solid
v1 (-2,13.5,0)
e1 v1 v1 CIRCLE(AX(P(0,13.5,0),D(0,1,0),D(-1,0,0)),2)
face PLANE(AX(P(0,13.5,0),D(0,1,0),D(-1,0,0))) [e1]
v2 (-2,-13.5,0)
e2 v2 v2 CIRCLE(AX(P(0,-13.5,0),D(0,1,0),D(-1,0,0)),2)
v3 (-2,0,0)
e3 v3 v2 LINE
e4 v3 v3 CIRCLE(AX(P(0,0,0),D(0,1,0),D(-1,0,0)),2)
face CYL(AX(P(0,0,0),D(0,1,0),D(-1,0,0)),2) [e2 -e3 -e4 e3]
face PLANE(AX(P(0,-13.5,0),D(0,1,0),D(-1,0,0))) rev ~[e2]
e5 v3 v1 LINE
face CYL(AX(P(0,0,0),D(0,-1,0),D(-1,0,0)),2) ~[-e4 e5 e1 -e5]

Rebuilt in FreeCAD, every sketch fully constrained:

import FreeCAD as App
import Part
import Sketcher

doc = App.newDocument("Part")
params = doc.addObject("Spreadsheet::Sheet", "Params")
for row, (alias, value) in enumerate([
    ("sketch1_diameter", "4 mm"),
    ("pad1_length", "27 mm"),
], start=1):
    params.set(f"A{row}", alias)
    params.set(f"B{row}", "=" + value)
    params.setAlias(f"B{row}", alias)

body = doc.addObject("PartDesign::Body", "Body")

# Sketch on XZ plane
sketch1 = body.newObject("Sketcher::SketchObject", "Sketch")
sketch1.AttachmentSupport = (doc.getObject("XZ_Plane"), [""])
sketch1.MapMode = "FlatFace"
sketch1.addGeometry(Part.Circle(App.Vector(0, 0, 0), App.Vector(0, 0, 1), 2), False)
sketch1.addConstraint([
    Sketcher.Constraint("Coincident", 0, 3, -1, 1),
    Sketcher.Constraint("Diameter", 0, 4.0),
])
sketch1.setExpression("Constraints[1]", "Params.sketch1_diameter")
pad1 = body.newObject("PartDesign::Pad", "Pad")
pad1.Profile = sketch1
pad1.setExpression("Length", "Params.pad1_length")
pad1.Midplane = True

doc.recompute()
